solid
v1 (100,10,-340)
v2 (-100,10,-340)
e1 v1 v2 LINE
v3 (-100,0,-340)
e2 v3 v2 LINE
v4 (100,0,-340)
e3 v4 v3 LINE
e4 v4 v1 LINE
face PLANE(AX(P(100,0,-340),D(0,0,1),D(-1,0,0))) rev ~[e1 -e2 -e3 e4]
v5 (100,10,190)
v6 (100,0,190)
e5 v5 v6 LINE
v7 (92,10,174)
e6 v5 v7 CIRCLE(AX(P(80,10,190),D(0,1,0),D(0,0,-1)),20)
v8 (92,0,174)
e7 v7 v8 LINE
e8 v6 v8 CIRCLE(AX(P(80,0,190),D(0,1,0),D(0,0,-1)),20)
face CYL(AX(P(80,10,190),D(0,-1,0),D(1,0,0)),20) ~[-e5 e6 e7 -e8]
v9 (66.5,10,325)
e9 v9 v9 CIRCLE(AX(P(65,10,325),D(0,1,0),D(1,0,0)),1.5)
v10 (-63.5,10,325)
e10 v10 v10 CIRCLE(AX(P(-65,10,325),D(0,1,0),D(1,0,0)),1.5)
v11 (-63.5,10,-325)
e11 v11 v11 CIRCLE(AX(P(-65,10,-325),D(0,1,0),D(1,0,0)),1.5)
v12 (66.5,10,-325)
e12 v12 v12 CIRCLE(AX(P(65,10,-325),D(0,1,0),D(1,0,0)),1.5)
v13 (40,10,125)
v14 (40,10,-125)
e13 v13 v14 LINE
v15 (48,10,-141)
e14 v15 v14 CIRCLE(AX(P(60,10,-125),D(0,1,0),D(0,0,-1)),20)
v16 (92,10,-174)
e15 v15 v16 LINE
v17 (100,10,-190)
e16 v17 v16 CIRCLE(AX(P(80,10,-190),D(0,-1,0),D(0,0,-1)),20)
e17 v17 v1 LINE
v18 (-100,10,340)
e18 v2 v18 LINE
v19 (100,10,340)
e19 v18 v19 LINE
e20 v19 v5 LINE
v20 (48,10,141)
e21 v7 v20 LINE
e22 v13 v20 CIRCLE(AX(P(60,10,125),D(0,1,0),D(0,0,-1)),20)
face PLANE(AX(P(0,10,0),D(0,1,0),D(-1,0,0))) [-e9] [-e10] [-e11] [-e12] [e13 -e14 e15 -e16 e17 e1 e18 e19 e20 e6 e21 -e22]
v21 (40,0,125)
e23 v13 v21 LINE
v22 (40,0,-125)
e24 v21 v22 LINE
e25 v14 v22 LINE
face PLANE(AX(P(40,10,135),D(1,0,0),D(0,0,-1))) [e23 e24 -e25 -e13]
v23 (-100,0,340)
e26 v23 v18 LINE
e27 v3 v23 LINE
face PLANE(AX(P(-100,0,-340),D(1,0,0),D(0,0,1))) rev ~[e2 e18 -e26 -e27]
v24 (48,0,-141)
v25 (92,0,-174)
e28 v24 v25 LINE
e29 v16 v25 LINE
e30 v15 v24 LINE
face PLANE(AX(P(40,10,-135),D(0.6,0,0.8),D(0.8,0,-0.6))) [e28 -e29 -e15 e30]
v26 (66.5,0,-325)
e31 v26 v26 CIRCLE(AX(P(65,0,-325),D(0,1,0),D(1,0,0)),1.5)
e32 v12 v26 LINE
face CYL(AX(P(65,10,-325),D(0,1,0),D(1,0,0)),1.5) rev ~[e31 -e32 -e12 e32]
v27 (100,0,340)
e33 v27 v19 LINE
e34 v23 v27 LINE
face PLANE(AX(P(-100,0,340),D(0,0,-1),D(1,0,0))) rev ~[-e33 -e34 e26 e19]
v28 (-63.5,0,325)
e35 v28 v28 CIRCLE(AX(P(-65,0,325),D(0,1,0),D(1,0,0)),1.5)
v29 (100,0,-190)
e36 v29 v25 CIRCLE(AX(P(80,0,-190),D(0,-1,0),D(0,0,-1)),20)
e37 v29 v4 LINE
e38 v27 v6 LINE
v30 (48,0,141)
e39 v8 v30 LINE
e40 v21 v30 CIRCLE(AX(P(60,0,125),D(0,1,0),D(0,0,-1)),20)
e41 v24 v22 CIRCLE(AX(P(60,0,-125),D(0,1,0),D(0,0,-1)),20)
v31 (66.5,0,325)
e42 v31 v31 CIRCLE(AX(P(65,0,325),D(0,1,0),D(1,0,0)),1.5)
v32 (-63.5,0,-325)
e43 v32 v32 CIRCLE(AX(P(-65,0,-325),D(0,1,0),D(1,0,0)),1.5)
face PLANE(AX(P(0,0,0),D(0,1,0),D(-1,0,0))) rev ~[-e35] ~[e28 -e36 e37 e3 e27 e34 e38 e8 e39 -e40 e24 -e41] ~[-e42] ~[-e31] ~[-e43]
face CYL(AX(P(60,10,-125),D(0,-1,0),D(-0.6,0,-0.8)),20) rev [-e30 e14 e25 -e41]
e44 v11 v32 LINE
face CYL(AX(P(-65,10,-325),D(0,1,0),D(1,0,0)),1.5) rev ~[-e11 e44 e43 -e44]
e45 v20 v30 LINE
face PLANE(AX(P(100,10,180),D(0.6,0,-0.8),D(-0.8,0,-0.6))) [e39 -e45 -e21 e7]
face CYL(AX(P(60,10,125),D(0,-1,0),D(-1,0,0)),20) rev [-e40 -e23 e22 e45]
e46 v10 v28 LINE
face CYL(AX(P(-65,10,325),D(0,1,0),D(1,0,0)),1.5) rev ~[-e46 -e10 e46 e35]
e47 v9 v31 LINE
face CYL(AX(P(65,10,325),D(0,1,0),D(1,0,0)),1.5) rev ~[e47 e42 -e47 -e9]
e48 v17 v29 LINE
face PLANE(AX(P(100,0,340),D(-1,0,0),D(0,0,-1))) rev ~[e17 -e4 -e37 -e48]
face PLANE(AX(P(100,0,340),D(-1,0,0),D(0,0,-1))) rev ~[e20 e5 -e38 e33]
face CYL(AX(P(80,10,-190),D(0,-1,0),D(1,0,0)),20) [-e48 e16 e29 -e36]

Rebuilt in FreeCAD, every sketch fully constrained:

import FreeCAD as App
import Part
import Sketcher

V = App.Vector


def edges_at(feature, points):
    """Names of the edges that pass closest to the given points."""
    edges = feature.Shape.Edges
    near = lambda p: min(range(len(edges)), key=lambda i: edges[i].distToShape(Part.Vertex(*p))[0])
    return sorted({f"Edge{near(p) + 1}" for p in points})

doc = App.newDocument("Part")
body = doc.addObject("PartDesign::Body", "Body")

sketch1 = body.newObject("Sketcher::SketchObject", "Sketch")
sketch1.AttachmentSupport = (doc.getObject("XZ_Plane"), [""])
sketch1.MapMode = "FlatFace"
sketch1.addGeometry([
    Part.LineSegment(V(-100, -340, 0), V(-100, 340, 0)),
    Part.LineSegment(V(-100, 340, 0), V(100, 340, 0)),
    Part.LineSegment(V(100, 340, 0), V(100, -340, 0)),
    Part.LineSegment(V(100, -340, 0), V(-100, -340, 0)),
], False)
sketch1.addConstraint([
    Sketcher.Constraint("Coincident", 0, 2, 1, 1),
    Sketcher.Constraint("Coincident", 1, 2, 2, 1),
    Sketcher.Constraint("Coincident", 2, 2, 3, 1),
    Sketcher.Constraint("Coincident", 3, 2, 0, 1),
    Sketcher.Constraint("Vertical", 0),
    Sketcher.Constraint("Horizontal", 1),
    Sketcher.Constraint("Vertical", 2),
    Sketcher.Constraint("Horizontal", 3),
    Sketcher.Constraint("Symmetric", 0, 2, 2, 2, -1, 1),
    Sketcher.Constraint("DistanceX", 1, 1, 1, 2, 200.0),
    Sketcher.Constraint("DistanceY", 0, 1, 0, 2, 680.0),
])
pad1 = body.newObject("PartDesign::Pad", "Pad")
pad1.Profile = sketch1
pad1.Length = 10
pad1.Reversed = True

sketch2 = body.newObject("Sketcher::SketchObject", "Sketch001")
sketch2.AttachmentSupport = (doc.getObject("XZ_Plane"), [""])
sketch2.MapMode = "FlatFace"
sketch2.AttachmentOffset = App.Placement(V(0, 0, -10), App.Rotation())
sketch2.addGeometry([
    Part.LineSegment(V(40, 135, 0), V(100, 180, 0)),
    Part.LineSegment(V(100, 180, 0), V(100, -180, 0)),
    Part.LineSegment(V(100, -180, 0), V(40, -135, 0)),
    Part.LineSegment(V(40, -135, 0), V(40, 135, 0)),
], False)
sketch2.addConstraint([
    Sketcher.Constraint("Coincident", 0, 2, 1, 1),
    Sketcher.Constraint("Coincident", 1, 2, 2, 1),
    Sketcher.Constraint("Coincident", 2, 2, 3, 1),
    Sketcher.Constraint("Coincident", 3, 2, 0, 1),
    Sketcher.Constraint("Vertical", 1),
    Sketcher.Constraint("Vertical", 3),
    Sketcher.Constraint("Equal", 0, 2),
    Sketcher.Constraint("DistanceY", 3, 1, 3, 2, 270.0),
    Sketcher.Constraint("DistanceY", 2, 2, -1, 1, 135.0),
    Sketcher.Constraint("DistanceY", 1, 2, 1, 1, 360.0),
    Sketcher.Constraint("Distance", 0, 75.0),
    Sketcher.Constraint("DistanceX", -1, 1, 0, 2, 100.0),
])
pocket1 = body.newObject("PartDesign::Pocket", "Pocket")
pocket1.Profile = sketch2
pocket1.Type = "ThroughAll"
pocket1.Reversed = True
doc.recompute()

fillet = body.newObject("PartDesign::Fillet", "Fillet")
fillet.Base = (pocket1, edges_at(pocket1, [
    (40, 5, 135),
    (100, 5, 180),
    (40, 5, -135),
    (100, 5, -180),
]))
fillet.Radius = 20

sketch3 = body.newObject("Sketcher::SketchObject", "Sketch002")
sketch3.AttachmentSupport = (doc.getObject("XZ_Plane"), [""])
sketch3.MapMode = "FlatFace"
sketch3.AttachmentOffset = App.Placement(V(0, 0, -10), App.Rotation())
sketch3.addGeometry([
    Part.Circle(V(-65, 325, 0), V(0, 0, 1), 1.5),
    Part.Circle(V(65, 325, 0), V(0, 0, 1), 1.5),
    Part.Circle(V(65, -325, 0), V(0, 0, 1), 1.5),
    Part.Circle(V(-65, -325, 0), V(0, 0, 1), 1.5),
], False)
sketch3.addConstraint([
    Sketcher.Constraint("Equal", 0, 1),
    Sketcher.Constraint("Equal", 1, 2),
    Sketcher.Constraint("Equal", 2, 3),
    Sketcher.Constraint("Symmetric", 0, 3, 2, 3, -1, 1),
    Sketcher.Constraint("Symmetric", 1, 3, 3, 3, -1, 1),
    Sketcher.Constraint("Symmetric", 0, 3, 1, 3, -2),
    Sketcher.Constraint("Diameter", 0, 3.0),
    Sketcher.Constraint("DistanceX", 0, 3, -1, 1, 65.0),
    Sketcher.Constraint("DistanceY", -1, 1, 0, 3, 325.0),
])
pocket2 = body.newObject("PartDesign::Pocket", "Pocket001")
pocket2.Profile = sketch3
pocket2.Type = "ThroughAll"
pocket2.Reversed = True

doc.recompute()
